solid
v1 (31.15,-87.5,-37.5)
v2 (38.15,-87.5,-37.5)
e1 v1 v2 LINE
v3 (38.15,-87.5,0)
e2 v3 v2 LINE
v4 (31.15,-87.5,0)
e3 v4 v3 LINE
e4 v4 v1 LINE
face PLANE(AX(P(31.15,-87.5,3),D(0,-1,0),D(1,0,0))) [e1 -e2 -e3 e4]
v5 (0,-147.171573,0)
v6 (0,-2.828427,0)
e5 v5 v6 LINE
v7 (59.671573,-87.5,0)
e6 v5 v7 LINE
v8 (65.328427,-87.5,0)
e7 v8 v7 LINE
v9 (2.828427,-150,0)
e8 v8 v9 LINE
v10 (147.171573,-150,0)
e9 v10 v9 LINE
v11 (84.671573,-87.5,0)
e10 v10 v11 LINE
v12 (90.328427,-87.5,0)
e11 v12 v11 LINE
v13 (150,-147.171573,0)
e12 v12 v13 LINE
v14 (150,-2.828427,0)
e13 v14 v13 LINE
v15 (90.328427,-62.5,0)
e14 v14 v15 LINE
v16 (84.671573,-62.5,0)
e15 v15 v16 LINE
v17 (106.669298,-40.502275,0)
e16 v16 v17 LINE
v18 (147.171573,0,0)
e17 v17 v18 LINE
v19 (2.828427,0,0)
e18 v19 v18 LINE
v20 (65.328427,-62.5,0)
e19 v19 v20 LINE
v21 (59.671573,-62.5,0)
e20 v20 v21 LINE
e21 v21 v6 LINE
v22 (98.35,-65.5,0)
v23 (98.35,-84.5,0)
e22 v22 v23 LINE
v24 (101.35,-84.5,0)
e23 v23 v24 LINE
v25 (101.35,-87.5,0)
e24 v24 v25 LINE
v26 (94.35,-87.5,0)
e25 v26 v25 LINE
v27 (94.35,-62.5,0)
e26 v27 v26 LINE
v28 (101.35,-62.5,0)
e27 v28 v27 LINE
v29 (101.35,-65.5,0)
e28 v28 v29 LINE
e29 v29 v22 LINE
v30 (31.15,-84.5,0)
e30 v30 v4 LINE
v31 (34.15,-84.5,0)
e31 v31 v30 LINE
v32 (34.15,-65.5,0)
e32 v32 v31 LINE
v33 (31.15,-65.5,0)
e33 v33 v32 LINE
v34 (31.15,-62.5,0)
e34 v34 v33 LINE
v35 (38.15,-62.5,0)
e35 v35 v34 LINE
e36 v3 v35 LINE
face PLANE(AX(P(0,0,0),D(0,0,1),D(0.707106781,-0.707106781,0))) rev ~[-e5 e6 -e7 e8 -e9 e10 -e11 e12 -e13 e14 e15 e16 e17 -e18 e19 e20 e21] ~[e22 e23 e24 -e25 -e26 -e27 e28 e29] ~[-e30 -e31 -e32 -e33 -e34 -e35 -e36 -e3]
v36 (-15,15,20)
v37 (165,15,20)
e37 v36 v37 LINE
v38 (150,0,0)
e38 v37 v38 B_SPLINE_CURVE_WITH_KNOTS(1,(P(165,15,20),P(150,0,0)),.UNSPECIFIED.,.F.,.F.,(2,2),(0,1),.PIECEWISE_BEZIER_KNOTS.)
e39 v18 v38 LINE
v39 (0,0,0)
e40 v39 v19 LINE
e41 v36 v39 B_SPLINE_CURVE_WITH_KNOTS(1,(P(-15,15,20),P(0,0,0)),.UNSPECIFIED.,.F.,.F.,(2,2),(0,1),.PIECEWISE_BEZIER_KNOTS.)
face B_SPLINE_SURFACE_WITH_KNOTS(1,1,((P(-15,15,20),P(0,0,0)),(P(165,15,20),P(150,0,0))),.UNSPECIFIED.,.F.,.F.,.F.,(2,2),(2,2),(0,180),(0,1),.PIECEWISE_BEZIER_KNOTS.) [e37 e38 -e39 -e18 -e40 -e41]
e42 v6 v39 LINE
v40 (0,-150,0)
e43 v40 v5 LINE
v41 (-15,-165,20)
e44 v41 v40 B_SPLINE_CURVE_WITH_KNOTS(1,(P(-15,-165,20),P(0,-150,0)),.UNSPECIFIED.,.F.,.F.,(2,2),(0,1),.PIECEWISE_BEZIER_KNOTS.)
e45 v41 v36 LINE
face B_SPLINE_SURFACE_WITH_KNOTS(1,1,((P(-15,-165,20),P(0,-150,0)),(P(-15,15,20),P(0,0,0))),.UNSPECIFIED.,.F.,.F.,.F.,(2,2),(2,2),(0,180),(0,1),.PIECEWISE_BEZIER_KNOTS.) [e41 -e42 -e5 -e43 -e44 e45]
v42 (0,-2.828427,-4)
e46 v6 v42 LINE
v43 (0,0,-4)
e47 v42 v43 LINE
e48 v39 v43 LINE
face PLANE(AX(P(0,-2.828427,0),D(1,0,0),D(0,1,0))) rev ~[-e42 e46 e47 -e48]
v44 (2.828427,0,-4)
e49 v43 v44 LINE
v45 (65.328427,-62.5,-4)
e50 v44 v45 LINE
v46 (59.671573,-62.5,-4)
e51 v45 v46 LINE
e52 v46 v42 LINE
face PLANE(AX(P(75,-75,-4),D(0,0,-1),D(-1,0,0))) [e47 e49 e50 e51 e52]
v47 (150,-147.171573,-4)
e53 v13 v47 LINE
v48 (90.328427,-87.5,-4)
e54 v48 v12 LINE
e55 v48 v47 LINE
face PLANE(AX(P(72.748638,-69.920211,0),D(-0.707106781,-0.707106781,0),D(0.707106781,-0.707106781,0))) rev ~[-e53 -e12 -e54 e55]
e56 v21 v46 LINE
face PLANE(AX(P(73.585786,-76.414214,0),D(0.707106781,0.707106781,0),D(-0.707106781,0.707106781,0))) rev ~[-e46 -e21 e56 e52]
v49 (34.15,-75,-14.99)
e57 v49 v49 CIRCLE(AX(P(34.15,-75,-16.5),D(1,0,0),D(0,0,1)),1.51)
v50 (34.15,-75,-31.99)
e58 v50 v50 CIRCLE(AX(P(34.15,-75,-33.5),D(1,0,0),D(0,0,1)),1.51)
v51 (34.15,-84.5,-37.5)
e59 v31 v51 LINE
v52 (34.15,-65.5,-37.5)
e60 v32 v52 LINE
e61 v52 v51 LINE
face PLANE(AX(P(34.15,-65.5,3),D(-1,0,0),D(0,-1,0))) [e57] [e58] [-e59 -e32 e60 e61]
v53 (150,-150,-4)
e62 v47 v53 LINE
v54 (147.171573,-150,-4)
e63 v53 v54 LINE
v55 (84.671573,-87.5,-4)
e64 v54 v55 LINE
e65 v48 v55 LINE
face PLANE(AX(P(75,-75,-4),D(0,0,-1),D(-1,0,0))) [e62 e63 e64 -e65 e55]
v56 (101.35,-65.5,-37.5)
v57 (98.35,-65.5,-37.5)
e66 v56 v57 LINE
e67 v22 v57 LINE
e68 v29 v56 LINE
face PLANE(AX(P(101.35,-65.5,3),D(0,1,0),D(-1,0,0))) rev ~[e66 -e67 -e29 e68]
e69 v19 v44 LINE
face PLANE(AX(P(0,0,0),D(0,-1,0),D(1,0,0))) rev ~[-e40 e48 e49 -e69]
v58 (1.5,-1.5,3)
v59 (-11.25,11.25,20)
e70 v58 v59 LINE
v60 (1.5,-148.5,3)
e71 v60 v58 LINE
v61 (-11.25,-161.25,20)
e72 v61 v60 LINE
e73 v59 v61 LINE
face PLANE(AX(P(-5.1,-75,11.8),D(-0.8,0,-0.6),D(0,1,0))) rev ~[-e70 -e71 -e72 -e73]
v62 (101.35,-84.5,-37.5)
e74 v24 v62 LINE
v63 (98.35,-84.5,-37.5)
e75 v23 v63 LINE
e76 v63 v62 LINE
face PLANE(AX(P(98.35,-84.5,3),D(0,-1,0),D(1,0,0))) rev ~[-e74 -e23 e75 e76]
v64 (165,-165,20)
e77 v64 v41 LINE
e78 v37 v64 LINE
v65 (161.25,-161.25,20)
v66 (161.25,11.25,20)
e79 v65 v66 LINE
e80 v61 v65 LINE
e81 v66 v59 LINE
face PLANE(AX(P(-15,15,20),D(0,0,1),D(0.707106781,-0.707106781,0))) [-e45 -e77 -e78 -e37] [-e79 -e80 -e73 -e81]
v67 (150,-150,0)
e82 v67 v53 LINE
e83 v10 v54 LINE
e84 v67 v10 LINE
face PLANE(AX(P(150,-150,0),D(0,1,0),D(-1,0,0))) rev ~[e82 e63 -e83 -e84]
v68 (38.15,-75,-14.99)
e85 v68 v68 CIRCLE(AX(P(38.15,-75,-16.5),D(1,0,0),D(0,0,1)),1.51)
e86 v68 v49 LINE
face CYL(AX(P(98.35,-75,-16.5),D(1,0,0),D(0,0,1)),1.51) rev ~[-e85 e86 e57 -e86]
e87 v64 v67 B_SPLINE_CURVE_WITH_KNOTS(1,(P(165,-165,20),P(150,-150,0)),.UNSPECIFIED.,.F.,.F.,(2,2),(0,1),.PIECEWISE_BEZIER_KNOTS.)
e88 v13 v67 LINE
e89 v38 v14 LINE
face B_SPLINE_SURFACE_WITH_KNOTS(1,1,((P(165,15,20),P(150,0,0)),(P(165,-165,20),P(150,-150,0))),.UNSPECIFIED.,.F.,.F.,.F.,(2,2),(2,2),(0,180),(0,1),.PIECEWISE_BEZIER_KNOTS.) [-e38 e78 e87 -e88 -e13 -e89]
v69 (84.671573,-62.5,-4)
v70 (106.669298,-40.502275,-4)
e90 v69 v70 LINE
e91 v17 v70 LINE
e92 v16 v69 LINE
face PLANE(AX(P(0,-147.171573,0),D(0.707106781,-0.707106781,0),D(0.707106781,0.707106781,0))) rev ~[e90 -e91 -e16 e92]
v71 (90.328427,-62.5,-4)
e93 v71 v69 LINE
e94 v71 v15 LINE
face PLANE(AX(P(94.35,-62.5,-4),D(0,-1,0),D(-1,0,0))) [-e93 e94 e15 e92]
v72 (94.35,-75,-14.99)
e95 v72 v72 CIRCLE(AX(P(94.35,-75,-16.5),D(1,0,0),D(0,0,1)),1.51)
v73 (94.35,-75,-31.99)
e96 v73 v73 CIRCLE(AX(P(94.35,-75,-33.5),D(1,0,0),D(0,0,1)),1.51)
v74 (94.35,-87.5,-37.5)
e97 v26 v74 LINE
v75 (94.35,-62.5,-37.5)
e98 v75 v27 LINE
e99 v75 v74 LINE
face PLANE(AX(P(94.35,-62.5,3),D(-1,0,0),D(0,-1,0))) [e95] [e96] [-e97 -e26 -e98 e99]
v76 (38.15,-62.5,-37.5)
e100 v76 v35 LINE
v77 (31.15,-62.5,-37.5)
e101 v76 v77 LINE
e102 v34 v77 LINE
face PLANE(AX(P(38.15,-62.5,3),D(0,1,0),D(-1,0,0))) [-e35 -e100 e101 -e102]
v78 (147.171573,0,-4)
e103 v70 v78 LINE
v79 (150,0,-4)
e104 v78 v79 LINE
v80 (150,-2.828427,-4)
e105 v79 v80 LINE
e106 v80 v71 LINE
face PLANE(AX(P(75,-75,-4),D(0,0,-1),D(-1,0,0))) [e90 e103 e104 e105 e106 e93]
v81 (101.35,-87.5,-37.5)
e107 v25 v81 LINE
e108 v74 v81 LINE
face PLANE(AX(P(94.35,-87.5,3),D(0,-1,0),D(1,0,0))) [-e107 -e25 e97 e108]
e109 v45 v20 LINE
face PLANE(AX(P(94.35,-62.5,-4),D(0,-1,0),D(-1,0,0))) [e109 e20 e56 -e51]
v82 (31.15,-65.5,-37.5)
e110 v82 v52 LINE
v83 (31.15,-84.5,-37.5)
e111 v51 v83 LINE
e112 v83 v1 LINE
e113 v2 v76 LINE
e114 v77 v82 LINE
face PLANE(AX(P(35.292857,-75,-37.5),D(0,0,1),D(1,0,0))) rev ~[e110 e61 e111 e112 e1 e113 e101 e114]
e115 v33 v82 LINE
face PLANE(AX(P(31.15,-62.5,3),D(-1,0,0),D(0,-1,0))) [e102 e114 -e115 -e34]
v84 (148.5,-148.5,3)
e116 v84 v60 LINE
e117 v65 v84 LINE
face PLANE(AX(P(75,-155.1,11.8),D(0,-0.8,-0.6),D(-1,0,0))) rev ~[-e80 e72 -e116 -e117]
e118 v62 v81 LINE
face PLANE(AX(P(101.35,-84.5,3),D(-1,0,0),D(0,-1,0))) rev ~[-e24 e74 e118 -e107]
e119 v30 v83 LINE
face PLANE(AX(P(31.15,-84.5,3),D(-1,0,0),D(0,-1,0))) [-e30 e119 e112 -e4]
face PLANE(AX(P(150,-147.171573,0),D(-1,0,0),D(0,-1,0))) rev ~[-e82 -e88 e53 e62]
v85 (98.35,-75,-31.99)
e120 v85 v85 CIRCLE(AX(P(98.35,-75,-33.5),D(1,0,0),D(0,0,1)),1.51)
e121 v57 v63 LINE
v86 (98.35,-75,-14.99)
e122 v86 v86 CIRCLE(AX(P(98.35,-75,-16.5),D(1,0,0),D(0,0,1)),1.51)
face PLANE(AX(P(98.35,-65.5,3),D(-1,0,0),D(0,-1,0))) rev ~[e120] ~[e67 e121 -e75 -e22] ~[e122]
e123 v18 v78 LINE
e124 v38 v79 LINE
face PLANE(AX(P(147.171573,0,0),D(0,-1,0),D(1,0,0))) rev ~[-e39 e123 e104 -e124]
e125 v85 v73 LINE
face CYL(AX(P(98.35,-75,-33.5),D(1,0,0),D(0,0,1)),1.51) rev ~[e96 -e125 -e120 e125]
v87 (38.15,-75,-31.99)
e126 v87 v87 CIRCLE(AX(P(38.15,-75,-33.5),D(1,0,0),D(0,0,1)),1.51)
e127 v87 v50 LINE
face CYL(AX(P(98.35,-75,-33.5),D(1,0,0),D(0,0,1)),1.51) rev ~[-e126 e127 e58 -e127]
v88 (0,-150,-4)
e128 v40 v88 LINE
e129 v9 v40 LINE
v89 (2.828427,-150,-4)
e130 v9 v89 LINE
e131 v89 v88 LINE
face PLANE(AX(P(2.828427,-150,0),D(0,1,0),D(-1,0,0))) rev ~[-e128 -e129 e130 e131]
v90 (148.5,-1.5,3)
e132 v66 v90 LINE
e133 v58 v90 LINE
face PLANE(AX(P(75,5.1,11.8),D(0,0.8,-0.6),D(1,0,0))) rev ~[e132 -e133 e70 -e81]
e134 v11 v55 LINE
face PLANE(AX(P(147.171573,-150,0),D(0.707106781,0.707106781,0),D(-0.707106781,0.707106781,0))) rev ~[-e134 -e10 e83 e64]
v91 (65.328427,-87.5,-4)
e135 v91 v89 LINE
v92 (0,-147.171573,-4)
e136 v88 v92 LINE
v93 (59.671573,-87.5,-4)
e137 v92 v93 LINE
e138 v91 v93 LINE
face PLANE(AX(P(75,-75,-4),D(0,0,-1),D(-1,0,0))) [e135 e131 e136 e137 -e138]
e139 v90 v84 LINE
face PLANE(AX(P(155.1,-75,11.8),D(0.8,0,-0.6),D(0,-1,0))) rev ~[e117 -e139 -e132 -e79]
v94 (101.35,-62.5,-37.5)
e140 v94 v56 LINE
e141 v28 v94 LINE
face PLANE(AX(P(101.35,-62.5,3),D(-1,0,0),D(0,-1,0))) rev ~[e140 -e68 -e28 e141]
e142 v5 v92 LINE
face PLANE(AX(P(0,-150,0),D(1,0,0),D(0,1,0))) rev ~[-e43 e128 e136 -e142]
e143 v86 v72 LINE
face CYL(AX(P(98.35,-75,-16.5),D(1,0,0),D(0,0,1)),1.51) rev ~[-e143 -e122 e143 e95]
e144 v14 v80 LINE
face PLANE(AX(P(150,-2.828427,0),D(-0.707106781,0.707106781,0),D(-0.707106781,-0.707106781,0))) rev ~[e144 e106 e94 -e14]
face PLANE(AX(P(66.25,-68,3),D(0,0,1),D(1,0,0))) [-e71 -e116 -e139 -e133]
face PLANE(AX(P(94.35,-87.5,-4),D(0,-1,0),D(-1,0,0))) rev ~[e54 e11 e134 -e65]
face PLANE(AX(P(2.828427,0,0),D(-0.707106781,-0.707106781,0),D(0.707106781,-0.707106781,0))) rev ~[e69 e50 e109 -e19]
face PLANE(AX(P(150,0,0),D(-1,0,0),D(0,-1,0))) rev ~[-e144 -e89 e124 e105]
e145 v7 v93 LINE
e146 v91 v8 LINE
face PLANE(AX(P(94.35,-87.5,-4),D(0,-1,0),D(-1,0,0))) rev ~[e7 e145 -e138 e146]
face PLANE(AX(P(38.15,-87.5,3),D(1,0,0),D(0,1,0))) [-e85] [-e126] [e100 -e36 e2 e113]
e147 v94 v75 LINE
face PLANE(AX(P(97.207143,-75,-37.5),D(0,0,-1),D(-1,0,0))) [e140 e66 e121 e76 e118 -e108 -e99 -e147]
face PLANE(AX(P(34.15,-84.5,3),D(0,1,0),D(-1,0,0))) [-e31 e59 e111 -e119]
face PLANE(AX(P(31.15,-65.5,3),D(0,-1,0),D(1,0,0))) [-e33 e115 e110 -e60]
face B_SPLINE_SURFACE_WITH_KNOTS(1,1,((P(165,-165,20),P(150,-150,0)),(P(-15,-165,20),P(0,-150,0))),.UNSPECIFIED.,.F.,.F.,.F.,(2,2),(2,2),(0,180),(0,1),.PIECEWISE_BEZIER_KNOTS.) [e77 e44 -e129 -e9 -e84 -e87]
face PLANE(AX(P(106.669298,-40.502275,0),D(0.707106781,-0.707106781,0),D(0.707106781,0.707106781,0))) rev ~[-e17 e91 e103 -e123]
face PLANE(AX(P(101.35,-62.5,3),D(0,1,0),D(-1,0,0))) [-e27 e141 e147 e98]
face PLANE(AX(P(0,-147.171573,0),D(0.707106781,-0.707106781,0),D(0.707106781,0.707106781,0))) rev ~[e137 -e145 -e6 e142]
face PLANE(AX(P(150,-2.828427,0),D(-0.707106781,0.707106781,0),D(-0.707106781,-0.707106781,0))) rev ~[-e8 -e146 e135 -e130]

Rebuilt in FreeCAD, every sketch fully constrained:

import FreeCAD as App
import Part
import Sketcher

V = App.Vector
Q = App.Units.Quantity


def faces_at(feature, points):
    """Names of the faces that lie closest to the given points."""
    faces = feature.Shape.Faces
    near = lambda p: min(range(len(faces)), key=lambda i: faces[i].distToShape(Part.Vertex(*p))[0])
    return sorted({f"Face{near(p) + 1}" for p in points})

doc = App.newDocument("Part")
body = doc.addObject("PartDesign::Body", "Body")

# Sketch on XY plane
sketch1 = doc.addObject("Sketcher::SketchObject", "Sketch")
body.addObject(sketch1)
sketch1.AttachmentSupport = (doc.XY_Plane, [""])
sketch1.MapMode = "FlatFace"
sketch1.AttachmentOffset = App.Placement(V(0, 0, 20), App.Rotation())
sketch1.addGeometry(Part.LineSegment(V(165, 15, 0), V(-15, 15, 0)), False)
sketch1.addGeometry(Part.LineSegment(V(-15, 15, 0), V(-15, -165, 0)), False)
sketch1.addGeometry(Part.LineSegment(V(-15, -165, 0), V(165, -165, 0)), False)
sketch1.addGeometry(Part.LineSegment(V(165, -165, 0), V(165, 15, 0)), False)
sketch1.addConstraint(Sketcher.Constraint("Coincident", 0, 2, 1, 1))
sketch1.addConstraint(Sketcher.Constraint("Coincident", 1, 2, 2, 1))
sketch1.addConstraint(Sketcher.Constraint("Coincident", 2, 2, 3, 1))
sketch1.addConstraint(Sketcher.Constraint("Coincident", 3, 2, 0, 1))
sketch1.addConstraint(Sketcher.Constraint("Horizontal", 0))
sketch1.addConstraint(Sketcher.Constraint("Vertical", 1))
sketch1.addConstraint(Sketcher.Constraint("Horizontal", 2))
sketch1.addConstraint(Sketcher.Constraint("Vertical", 3))
sketch1.addConstraint(Sketcher.Constraint("Equal", 2, 1))
sketch1.addConstraint(Sketcher.Constraint("DistanceX", 0, 2, 0, 1, 180.0))
sketch1.addConstraint(Sketcher.Constraint("DistanceX", 0, 2, -1, 1, 15.0))
sketch1.addConstraint(Sketcher.Constraint("DistanceY", -1, 1, 0, 2, 15.0))

# Sketch on XY plane
sketch2 = doc.addObject("Sketcher::SketchObject", "Sketch001")
body.addObject(sketch2)
sketch2.AttachmentSupport = (doc.XY_Plane, [""])
sketch2.MapMode = "FlatFace"
sketch2.addGeometry(Part.LineSegment(V(150, 0, 0), V(0, 0, 0)), False)
sketch2.addGeometry(Part.LineSegment(V(0, 0, 0), V(0, -150, 0)), False)
sketch2.addGeometry(Part.LineSegment(V(0, -150, 0), V(150, -150, 0)), False)
sketch2.addGeometry(Part.LineSegment(V(150, -150, 0), V(150, 0, 0)), False)
sketch2.addConstraint(Sketcher.Constraint("Coincident", 0, 2, 1, 1))
sketch2.addConstraint(Sketcher.Constraint("Coincident", 1, 2, 2, 1))
sketch2.addConstraint(Sketcher.Constraint("Coincident", 2, 2, 3, 1))
sketch2.addConstraint(Sketcher.Constraint("Coincident", 3, 2, 0, 1))
sketch2.addConstraint(Sketcher.Constraint("Horizontal", 0))
sketch2.addConstraint(Sketcher.Constraint("Vertical", 1))
sketch2.addConstraint(Sketcher.Constraint("Horizontal", 2))
sketch2.addConstraint(Sketcher.Constraint("Vertical", 3))
sketch2.addConstraint(Sketcher.Constraint("Coincident", 0, 2, -1, 1))
sketch2.addConstraint(Sketcher.Constraint("Equal", 2, 1))
sketch2.addConstraint(Sketcher.Constraint("DistanceX", 0, 2, 0, 1, 150.0))

additiveloft = doc.addObject("PartDesign::AdditiveLoft", "AdditiveLoft")
body.addObject(additiveloft)
additiveloft.Profile = sketch1
additiveloft.Sections = [sketch2]
doc.recompute()

thickness = doc.addObject("PartDesign::Thickness", "Thickness")
body.addObject(thickness)
thickness.Base = (additiveloft, faces_at(additiveloft, [(75, -75, 20)]))
thickness.Value = 3
thickness.Reversed = True
thickness.Join = "Intersection"

# Sketch on XY plane
sketch3 = doc.addObject("Sketcher::SketchObject", "Sketch002")
body.addObject(sketch3)
sketch3.AttachmentSupport = (doc.XY_Plane, [""])
sketch3.MapMode = "FlatFace"
sketch3.AttachmentOffset = App.Placement(V(0, 0, 3), App.Rotation())
sketch3.addGeometry(Part.Circle(V(84.8, -75, 0), V(0, 0, 1), 1.5), False)
sketch3.addGeometry(Part.Circle(V(66.2, -82, 0), V(0, 0, 1), 1.5), False)
sketch3.addGeometry(Part.Circle(V(73.2, -75, 0), V(0, 0, 1), 1.5), False)
sketch3.addGeometry(Part.Circle(V(66.2, -68, 0), V(0, 0, 1), 1.5), False)
sketch3.addGeometry(Part.Circle(V(59.2, -75, 0), V(0, 0, 1), 1.5), False)
sketch3.addGeometry(Part.Circle(V(47.8, -75, 0), V(0, 0, 1), 1.5), False)
sketch3.addConstraint(Sketcher.Constraint("Equal", 0, 1))
sketch3.addConstraint(Sketcher.Constraint("Equal", 1, 2))
sketch3.addConstraint(Sketcher.Constraint("Equal", 2, 3))
sketch3.addConstraint(Sketcher.Constraint("Equal", 3, 4))
sketch3.addConstraint(Sketcher.Constraint("Equal", 4, 5))
sketch3.addConstraint(Sketcher.Constraint("Horizontal", 0, 3, 2, 3))
sketch3.addConstraint(Sketcher.Constraint("Horizontal", 2, 3, 4, 3))
sketch3.addConstraint(Sketcher.Constraint("Horizontal", 4, 3, 5, 3))
sketch3.addConstraint(Sketcher.Constraint("Vertical", 1, 3, 3, 3))
sketch3.addConstraint(Sketcher.Constraint("Diameter", 0, 3.0))
sketch3.addConstraint(Sketcher.Constraint("DistanceY", 0, 3, -1, 1, 75.0))
sketch3.addConstraint(Sketcher.Constraint("DistanceY", 1, 3, -1, 1, 82.0))
sketch3.addConstraint(Sketcher.Constraint("DistanceY", 3, 3, -1, 1, 68.0))
sketch3.addConstraint(Sketcher.Constraint("DistanceX", 1, 3, 2, 3, 7.0))
sketch3.addConstraint(Sketcher.Constraint("DistanceX", 4, 3, 1, 3, 7.0))
sketch3.addConstraint(Sketcher.Constraint("DistanceX", 5, 3, 0, 3, 37.0))
sketch3.addConstraint(Sketcher.Constraint("DistanceX", 1, 3, 0, 3, 18.5))
sketch3.addConstraint(Sketcher.Constraint("DistanceX", -1, 1, 0, 3, 84.75))
pocket1 = doc.addObject("PartDesign::Pocket", "Pocket")
body.addObject(pocket1)
pocket1.Profile = sketch3
pocket1.Length = 10

# Sketch on XY plane
sketch4 = doc.addObject("Sketcher::SketchObject", "Sketch003")
body.addObject(sketch4)
sketch4.AttachmentSupport = (doc.XY_Plane, [""])
sketch4.MapMode = "FlatFace"
sketch4.AttachmentOffset = App.Placement(V(0, 0, 3), App.Rotation())
sketch4.addGeometry(Part.LineSegment(V(38.1, -62.5, 0), V(31.1, -62.5, 0)), False)
sketch4.addGeometry(Part.LineSegment(V(31.1, -62.5, 0), V(31.1, -65.5, 0)), False)
sketch4.addGeometry(Part.LineSegment(V(31.1, -65.5, 0), V(34.1, -65.5, 0)), False)
sketch4.addGeometry(Part.LineSegment(V(34.1, -65.5, 0), V(34.1, -84.5, 0)), False)
sketch4.addGeometry(Part.LineSegment(V(34.1, -84.5, 0), V(31.1, -84.5, 0)), False)
sketch4.addGeometry(Part.LineSegment(V(31.1, -84.5, 0), V(31.1, -87.5, 0)), False)
sketch4.addGeometry(Part.LineSegment(V(31.1, -87.5, 0), V(38.1, -87.5, 0)), False)
sketch4.addGeometry(Part.LineSegment(V(38.1, -87.5, 0), V(38.1, -62.5, 0)), False)
sketch4.addGeometry(Part.LineSegment(V(94.3, -62.5, 0), V(94.3, -87.5, 0)), False)
sketch4.addGeometry(Part.LineSegment(V(94.3, -87.5, 0), V(101.3, -87.5, 0)), False)
sketch4.addGeometry(Part.LineSegment(V(101.3, -87.5, 0), V(101.3, -84.5, 0)), False)
sketch4.addGeometry(Part.LineSegment(V(101.3, -84.5, 0), V(98.3, -84.5, 0)), False)
sketch4.addGeometry(Part.LineSegment(V(98.3, -84.5, 0), V(98.3, -65.5, 0)), False)
sketch4.addGeometry(Part.LineSegment(V(98.3, -65.5, 0), V(101.3, -65.5, 0)), False)
sketch4.addGeometry(Part.LineSegment(V(101.3, -65.5, 0), V(101.3, -62.5, 0)), False)
sketch4.addGeometry(Part.LineSegment(V(101.3, -62.5, 0), V(94.3, -62.5, 0)), False)
sketch4.addConstraint(Sketcher.Constraint("Coincident", 0, 2, 1, 1))
sketch4.addConstraint(Sketcher.Constraint("Coincident", 1, 2, 2, 1))
sketch4.addConstraint(Sketcher.Constraint("Coincident", 2, 2, 3, 1))
sketch4.addConstraint(Sketcher.Constraint("Coincident", 3, 2, 4, 1))
sketch4.addConstraint(Sketcher.Constraint("Coincident", 4, 2, 5, 1))
sketch4.addConstraint(Sketcher.Constraint("Coincident", 5, 2, 6, 1))
sketch4.addConstraint(Sketcher.Constraint("Coincident", 6, 2, 7, 1))
sketch4.addConstraint(Sketcher.Constraint("Coincident", 7, 2, 0, 1))
sketch4.addConstraint(Sketcher.Constraint("Coincident", 8, 2, 9, 1))
sketch4.addConstraint(Sketcher.Constraint("Coincident", 9, 2, 10, 1))
sketch4.addConstraint(Sketcher.Constraint("Coincident", 10, 2, 11, 1))
sketch4.addConstraint(Sketcher.Constraint("Coincident", 11, 2, 12, 1))
sketch4.addConstraint(Sketcher.Constraint("Coincident", 12, 2, 13, 1))
sketch4.addConstraint(Sketcher.Constraint("Coincident", 13, 2, 14, 1))
sketch4.addConstraint(Sketcher.Constraint("Coincident", 14, 2, 15, 1))
sketch4.addConstraint(Sketcher.Constraint("Coincident", 15, 2, 8, 1))
sketch4.addConstraint(Sketcher.Constraint("Horizontal", 0))
sketch4.addConstraint(Sketcher.Constraint("Vertical", 1))
sketch4.addConstraint(Sketcher.Constraint("Horizontal", 2))
sketch4.addConstraint(Sketcher.Constraint("Vertical", 3))
sketch4.addConstraint(Sketcher.Constraint("Horizontal", 4))
sketch4.addConstraint(Sketcher.Constraint("Vertical", 5))
sketch4.addConstraint(Sketcher.Constraint("Horizontal", 6))
sketch4.addConstraint(Sketcher.Constraint("Vertical", 7))
sketch4.addConstraint(Sketcher.Constraint("Vertical", 8))
sketch4.addConstraint(Sketcher.Constraint("Horizontal", 9))
sketch4.addConstraint(Sketcher.Constraint("Vertical", 10))
sketch4.addConstraint(Sketcher.Constraint("Horizontal", 11))
sketch4.addConstraint(Sketcher.Constraint("Vertical", 12))
sketch4.addConstraint(Sketcher.Constraint("Horizontal", 13))
sketch4.addConstraint(Sketcher.Constraint("Vertical", 14))
sketch4.addConstraint(Sketcher.Constraint("Horizontal", 15))
sketch4.addConstraint(Sketcher.Constraint("Horizontal", 6, 2, 8, 2))
sketch4.addConstraint(Sketcher.Constraint("Horizontal", 4, 2, 10, 2))
sketch4.addConstraint(Sketcher.Constraint("Horizontal", 2, 2, 12, 2))
sketch4.addConstraint(Sketcher.Constraint("Horizontal", 7, 2, 14, 2))
sketch4.addConstraint(Sketcher.Constraint("Vertical", 1, 2, 4, 2))
sketch4.addConstraint(Sketcher.Constraint("Vertical", 10, 2, 13, 2))
sketch4.addConstraint(Sketcher.Constraint("Equal", 6, 9))
sketch4.addConstraint(Sketcher.Constraint("Equal", 4, 11))
sketch4.addConstraint(Sketcher.Constraint("Equal", 13, 1))
sketch4.addConstraint(Sketcher.Constraint("Equal", 1, 5))
sketch4.addConstraint(Sketcher.Constraint("DistanceX", 0, 2, 0, 1, 7.0))
sketch4.addConstraint(Sketcher.Constraint("DistanceX", 2, 1, 2, 2, 3.0))
sketch4.addConstraint(Sketcher.Constraint("DistanceY", 3, 2, 3, 1, 19.0))
sketch4.addConstraint(Sketcher.Constraint("DistanceY", 0, 2, -1, 1, 62.5))
sketch4.addConstraint(Sketcher.Constraint("DistanceX", 6, 2, 8, 2, 56.2))
sketch4.addConstraint(Sketcher.Constraint("DistanceX", -1, 1, 0, 2, 31.15))
pad1 = doc.addObject("PartDesign::Pad", "Pad")
body.addObject(pad1)
pad1.Profile = sketch4
pad1.Length = 40.5
pad1.Reversed = True

# Sketch on YZ plane
sketch5 = doc.addObject("Sketcher::SketchObject", "Sketch004")
body.addObject(sketch5)
sketch5.AttachmentSupport = (doc.YZ_Plane, [""])
sketch5.MapMode = "FlatFace"
sketch5.AttachmentOffset = App.Placement(V(0, 0, 98.35), App.Rotation())
sketch5.addGeometry(Part.Circle(V(-75, -16.5, 0), V(0, 0, 1), 1.5), False)
sketch5.addGeometry(Part.Circle(V(-75, -33.5, 0), V(0, 0, 1), 1.5), False)
sketch5.addConstraint(Sketcher.Constraint("Equal", 0, 1))
sketch5.addConstraint(Sketcher.Constraint("Vertical", 0, 3, 1, 3))
sketch5.addConstraint(Sketcher.Constraint("Diameter", 0, 3.02))
sketch5.addConstraint(Sketcher.Constraint("DistanceX", 0, 3, -1, 1, 75.0))
sketch5.addConstraint(Sketcher.Constraint("DistanceY", 1, 3, 0, 3, 17.0))
sketch5.addConstraint(Sketcher.Constraint("DistanceY", 0, 3, -1, 1, 16.5))
pocket2 = doc.addObject("PartDesign::Pocket", "Pocket001")
body.addObject(pocket2)
pocket2.Profile = sketch5
pocket2.Length = 100

# Sketch on XY plane
sketch6 = doc.addObject("Sketcher::SketchObject", "Sketch005")
body.addObject(sketch6)
sketch6.AttachmentSupport = (doc.XY_Plane, [""])
sketch6.MapMode = "FlatFace"
sketch6.AttachmentOffset = App.Placement(V(0, 0, 3), App.Rotation())
sketch6.addGeometry(Part.Circle(V(66.2, -68, 0), V(0, 0, 1), 1.5), False)
sketch6.addGeometry(Part.Circle(V(59.2, -75, 0), V(0, 0, 1), 1.5), False)
sketch6.addGeometry(Part.Circle(V(47.8, -75, 0), V(0, 0, 1), 1.5), False)
sketch6.addGeometry(Part.Circle(V(73.2, -75, 0), V(0, 0, 1), 1.5), False)
sketch6.addGeometry(Part.Circle(V(84.8, -75, 0), V(0, 0, 1), 1.5), False)
sketch6.addGeometry(Part.Circle(V(66.2, -82, 0), V(0, 0, 1), 1.5), False)
sketch6.addConstraint(Sketcher.Constraint("Equal", 0, 1))
sketch6.addConstraint(Sketcher.Constraint("Equal", 1, 2))
sketch6.addConstraint(Sketcher.Constraint("Equal", 2, 3))
sketch6.addConstraint(Sketcher.Constraint("Equal", 3, 4))
sketch6.addConstraint(Sketcher.Constraint("Equal", 4, 5))
sketch6.addConstraint(Sketcher.Constraint("Horizontal", 1, 3, 2, 3))
sketch6.addConstraint(Sketcher.Constraint("Horizontal", 2, 3, 3, 3))
sketch6.addConstraint(Sketcher.Constraint("Horizontal", 3, 3, 4, 3))
sketch6.addConstraint(Sketcher.Constraint("Vertical", 0, 3, 5, 3))
sketch6.addConstraint(Sketcher.Constraint("Diameter", 0, 3.0))
sketch6.addConstraint(Sketcher.Constraint("DistanceY", 0, 3, -1, 1, 68.0))
sketch6.addConstraint(Sketcher.Constraint("DistanceY", 1, 3, -1, 1, 75.0))
sketch6.addConstraint(Sketcher.Constraint("DistanceY", 5, 3, -1, 1, 82.0))
sketch6.addConstraint(Sketcher.Constraint("DistanceX", 1, 3, 0, 3, 7.0))
sketch6.addConstraint(Sketcher.Constraint("DistanceX", 0, 3, 3, 3, 7.0))
sketch6.addConstraint(Sketcher.Constraint("DistanceX", 2, 3, 4, 3, 37.0))
sketch6.addConstraint(Sketcher.Constraint("DistanceX", 2, 3, 1, 3, 11.5))
sketch6.addConstraint(Sketcher.Constraint("DistanceX", -1, 1, 0, 3, 66.25))
pad2 = doc.addObject("PartDesign::Pad", "Pad001")
body.addObject(pad2)
pad2.Profile = sketch6
pad2.Length = 3
pad2.Reversed = True

# Sketch on XY plane
sketch7 = doc.addObject("Sketcher::SketchObject", "Sketch006")
body.addObject(sketch7)
sketch7.AttachmentSupport = (doc.XY_Plane, [""])
sketch7.MapMode = "FlatFace"
sketch7.addGeometry(Part.LineSegment(V(73.6, -76.4, 0), V(0, -2.8, 0)), False)
sketch7.addGeometry(Part.LineSegment(V(0, -2.8, 0), V(0, 0, 0)), False)
sketch7.addGeometry(Part.LineSegment(V(0, 0, 0), V(2.8, 0, 0)), False)
sketch7.addGeometry(Part.LineSegment(V(2.8, 0, 0), V(72.7, -69.9, 0)), False)
sketch7.addGeometry(Part.LineSegment(V(72.7, -69.9, 0), V(150, -147.2, 0)), False)
sketch7.addGeometry(Part.LineSegment(V(150, -147.2, 0), V(150, -150, 0)), False)
sketch7.addGeometry(Part.LineSegment(V(150, -150, 0), V(147.2, -150, 0)), False)
sketch7.addGeometry(Part.LineSegment(V(147.2, -150, 0), V(73.6, -76.4, 0)), False)
sketch7.addConstraint(Sketcher.Constraint("Coincident", 0, 2, 1, 1))
sketch7.addConstraint(Sketcher.Constraint("Coincident", 1, 2, 2, 1))
sketch7.addConstraint(Sketcher.Constraint("Coincident", 2, 2, 3, 1))
sketch7.addConstraint(Sketcher.Constraint("Coincident", 3, 2, 4, 1))
sketch7.addConstraint(Sketcher.Constraint("Coincident", 4, 2, 5, 1))
sketch7.addConstraint(Sketcher.Constraint("Coincident", 5, 2, 6, 1))
sketch7.addConstraint(Sketcher.Constraint("Coincident", 6, 2, 7, 1))
sketch7.addConstraint(Sketcher.Constraint("Coincident", 7, 2, 0, 1))
sketch7.addConstraint(Sketcher.Constraint("Vertical", 1))
sketch7.addConstraint(Sketcher.Constraint("Horizontal", 2))
sketch7.addConstraint(Sketcher.Constraint("Vertical", 5))
sketch7.addConstraint(Sketcher.Constraint("Horizontal", 6))
sketch7.addConstraint(Sketcher.Constraint("Coincident", 1, 2, -1, 1))
sketch7.addConstraint(Sketcher.Constraint("Parallel", 0, 3))
sketch7.addConstraint(Sketcher.Constraint("Parallel", 3, 4))
sketch7.addConstraint(Sketcher.Constraint("Parallel", 4, 7))
sketch7.addConstraint(Sketcher.Constraint("Equal", 2, 6))
sketch7.addConstraint(Sketcher.Constraint("Equal", 6, 1))
sketch7.addConstraint(Sketcher.Constraint("Equal", 0, 7))
sketch7.addConstraint(Sketcher.Constraint("Angle", 0, Q("135 deg")))
sketch7.addConstraint(Sketcher.Constraint("DistanceX", -1, 1, 4, 2, 150.0))
sketch7.addConstraint(Sketcher.Constraint("Distance", 3, 98.882111))
sketch7.addConstraint(Sketcher.Constraint("DistanceX", 2, 1, 2, 2, 2.828427))
pad3 = doc.addObject("PartDesign::Pad", "Pad002")
body.addObject(pad3)
pad3.Profile = sketch7
pad3.Length = 4
pad3.Reversed = True

# Sketch on XY plane
sketch8 = doc.addObject("Sketcher::SketchObject", "Sketch007")
body.addObject(sketch8)
sketch8.AttachmentSupport = (doc.XY_Plane, [""])
sketch8.MapMode = "FlatFace"
sketch8.addGeometry(Part.LineSegment(V(106.7, -40.5, 0), V(147.2, 0, 0)), False)
sketch8.addGeometry(Part.LineSegment(V(147.2, 0, 0), V(150, 0, 0)), False)
sketch8.addGeometry(Part.LineSegment(V(150, 0, 0), V(150, -2.8, 0)), False)
sketch8.addGeometry(Part.LineSegment(V(150, -2.8, 0), V(2.8, -150, 0)), False)
sketch8.addGeometry(Part.LineSegment(V(2.8, -150, 0), V(0, -150, 0)), False)
sketch8.addGeometry(Part.LineSegment(V(0, -150, 0), V(0, -147.2, 0)), False)
sketch8.addGeometry(Part.LineSegment(V(0, -147.2, 0), V(106.7, -40.5, 0)), False)
sketch8.addConstraint(Sketcher.Constraint("Coincident", 0, 2, 1, 1))
sketch8.addConstraint(Sketcher.Constraint("Coincident", 1, 2, 2, 1))
sketch8.addConstraint(Sketcher.Constraint("Coincident", 2, 2, 3, 1))
sketch8.addConstraint(Sketcher.Constraint("Coincident", 3, 2, 4, 1))
sketch8.addConstraint(Sketcher.Constraint("Coincident", 4, 2, 5, 1))
sketch8.addConstraint(Sketcher.Constraint("Coincident", 5, 2, 6, 1))
sketch8.addConstraint(Sketcher.Constraint("Coincident", 6, 2, 0, 1))
sketch8.addConstraint(Sketcher.Constraint("Horizontal", 1))
sketch8.addConstraint(Sketcher.Constraint("Vertical", 2))
sketch8.addConstraint(Sketcher.Constraint("Horizontal", 4))
sketch8.addConstraint(Sketcher.Constraint("Vertical", 5))
sketch8.addConstraint(Sketcher.Constraint("PointOnObject", 0, 2, -1))
sketch8.addConstraint(Sketcher.Constraint("PointOnObject", 4, 2, -2))
sketch8.addConstraint(Sketcher.Constraint("Parallel", 0, 3))
sketch8.addConstraint(Sketcher.Constraint("Parallel", 3, 6))
sketch8.addConstraint(Sketcher.Constraint("Equal", 1, 4))
sketch8.addConstraint(Sketcher.Constraint("Equal", 4, 2))
sketch8.addConstraint(Sketcher.Constraint("Angle", 0, Q("45 deg")))
sketch8.addConstraint(Sketcher.Constraint("DistanceX", -1, 1, 1, 2, 150.0))
sketch8.addConstraint(Sketcher.Constraint("DistanceX", 1, 1, 1, 2, 2.828427))
sketch8.addConstraint(Sketcher.Constraint("DistanceX", 3, 2, 6, 2, 103.840871))
pad4 = doc.addObject("PartDesign::Pad", "Pad003")
body.addObject(pad4)
pad4.Profile = sketch8
pad4.Length = 4
pad4.Reversed = True

# Sketch on XY plane
sketch9 = doc.addObject("Sketcher::SketchObject", "Sketch008")
body.addObject(sketch9)
sketch9.AttachmentSupport = (doc.XY_Plane, [""])
sketch9.MapMode = "FlatFace"
sketch9.AttachmentOffset = App.Placement(V(0, 0, -4), App.Rotation())
sketch9.addGeometry(Part.LineSegment(V(94, -62, 0), V(94, -88, 0)), False)
sketch9.addGeometry(Part.LineSegment(V(94, -88, 0), V(38, -88, 0)), False)
sketch9.addGeometry(Part.LineSegment(V(38, -88, 0), V(38, -62, 0)), False)
sketch9.addGeometry(Part.LineSegment(V(38, -62, 0), V(94, -62, 0)), False)
sketch9.addConstraint(Sketcher.Constraint("Coincident", 0, 2, 1, 1))
sketch9.addConstraint(Sketcher.Constraint("Coincident", 1, 2, 2, 1))
sketch9.addConstraint(Sketcher.Constraint("Coincident", 2, 2, 3, 1))
sketch9.addConstraint(Sketcher.Constraint("Coincident", 3, 2, 0, 1))
sketch9.addConstraint(Sketcher.Constraint("Vertical", 0))
sketch9.addConstraint(Sketcher.Constraint("Horizontal", 1))
sketch9.addConstraint(Sketcher.Constraint("Vertical", 2))
sketch9.addConstraint(Sketcher.Constraint("Horizontal", 3))
sketch9.addConstraint(Sketcher.Constraint("DistanceY", 0, 2, 0, 1, 25.0))
sketch9.addConstraint(Sketcher.Constraint("DistanceX", 1, 2, 1, 1, 56.2))
sketch9.addConstraint(Sketcher.Constraint("DistanceY", 0, 2, -1, 1, 87.5))
sketch9.addConstraint(Sketcher.Constraint("DistanceX", -1, 1, 0, 2, 94.35))
pocket3 = doc.addObject("PartDesign::Pocket", "Pocket002")
body.addObject(pocket3)
pocket3.Profile = sketch9
pocket3.Length = 4
pocket3.Reversed = True

doc.recompute()
